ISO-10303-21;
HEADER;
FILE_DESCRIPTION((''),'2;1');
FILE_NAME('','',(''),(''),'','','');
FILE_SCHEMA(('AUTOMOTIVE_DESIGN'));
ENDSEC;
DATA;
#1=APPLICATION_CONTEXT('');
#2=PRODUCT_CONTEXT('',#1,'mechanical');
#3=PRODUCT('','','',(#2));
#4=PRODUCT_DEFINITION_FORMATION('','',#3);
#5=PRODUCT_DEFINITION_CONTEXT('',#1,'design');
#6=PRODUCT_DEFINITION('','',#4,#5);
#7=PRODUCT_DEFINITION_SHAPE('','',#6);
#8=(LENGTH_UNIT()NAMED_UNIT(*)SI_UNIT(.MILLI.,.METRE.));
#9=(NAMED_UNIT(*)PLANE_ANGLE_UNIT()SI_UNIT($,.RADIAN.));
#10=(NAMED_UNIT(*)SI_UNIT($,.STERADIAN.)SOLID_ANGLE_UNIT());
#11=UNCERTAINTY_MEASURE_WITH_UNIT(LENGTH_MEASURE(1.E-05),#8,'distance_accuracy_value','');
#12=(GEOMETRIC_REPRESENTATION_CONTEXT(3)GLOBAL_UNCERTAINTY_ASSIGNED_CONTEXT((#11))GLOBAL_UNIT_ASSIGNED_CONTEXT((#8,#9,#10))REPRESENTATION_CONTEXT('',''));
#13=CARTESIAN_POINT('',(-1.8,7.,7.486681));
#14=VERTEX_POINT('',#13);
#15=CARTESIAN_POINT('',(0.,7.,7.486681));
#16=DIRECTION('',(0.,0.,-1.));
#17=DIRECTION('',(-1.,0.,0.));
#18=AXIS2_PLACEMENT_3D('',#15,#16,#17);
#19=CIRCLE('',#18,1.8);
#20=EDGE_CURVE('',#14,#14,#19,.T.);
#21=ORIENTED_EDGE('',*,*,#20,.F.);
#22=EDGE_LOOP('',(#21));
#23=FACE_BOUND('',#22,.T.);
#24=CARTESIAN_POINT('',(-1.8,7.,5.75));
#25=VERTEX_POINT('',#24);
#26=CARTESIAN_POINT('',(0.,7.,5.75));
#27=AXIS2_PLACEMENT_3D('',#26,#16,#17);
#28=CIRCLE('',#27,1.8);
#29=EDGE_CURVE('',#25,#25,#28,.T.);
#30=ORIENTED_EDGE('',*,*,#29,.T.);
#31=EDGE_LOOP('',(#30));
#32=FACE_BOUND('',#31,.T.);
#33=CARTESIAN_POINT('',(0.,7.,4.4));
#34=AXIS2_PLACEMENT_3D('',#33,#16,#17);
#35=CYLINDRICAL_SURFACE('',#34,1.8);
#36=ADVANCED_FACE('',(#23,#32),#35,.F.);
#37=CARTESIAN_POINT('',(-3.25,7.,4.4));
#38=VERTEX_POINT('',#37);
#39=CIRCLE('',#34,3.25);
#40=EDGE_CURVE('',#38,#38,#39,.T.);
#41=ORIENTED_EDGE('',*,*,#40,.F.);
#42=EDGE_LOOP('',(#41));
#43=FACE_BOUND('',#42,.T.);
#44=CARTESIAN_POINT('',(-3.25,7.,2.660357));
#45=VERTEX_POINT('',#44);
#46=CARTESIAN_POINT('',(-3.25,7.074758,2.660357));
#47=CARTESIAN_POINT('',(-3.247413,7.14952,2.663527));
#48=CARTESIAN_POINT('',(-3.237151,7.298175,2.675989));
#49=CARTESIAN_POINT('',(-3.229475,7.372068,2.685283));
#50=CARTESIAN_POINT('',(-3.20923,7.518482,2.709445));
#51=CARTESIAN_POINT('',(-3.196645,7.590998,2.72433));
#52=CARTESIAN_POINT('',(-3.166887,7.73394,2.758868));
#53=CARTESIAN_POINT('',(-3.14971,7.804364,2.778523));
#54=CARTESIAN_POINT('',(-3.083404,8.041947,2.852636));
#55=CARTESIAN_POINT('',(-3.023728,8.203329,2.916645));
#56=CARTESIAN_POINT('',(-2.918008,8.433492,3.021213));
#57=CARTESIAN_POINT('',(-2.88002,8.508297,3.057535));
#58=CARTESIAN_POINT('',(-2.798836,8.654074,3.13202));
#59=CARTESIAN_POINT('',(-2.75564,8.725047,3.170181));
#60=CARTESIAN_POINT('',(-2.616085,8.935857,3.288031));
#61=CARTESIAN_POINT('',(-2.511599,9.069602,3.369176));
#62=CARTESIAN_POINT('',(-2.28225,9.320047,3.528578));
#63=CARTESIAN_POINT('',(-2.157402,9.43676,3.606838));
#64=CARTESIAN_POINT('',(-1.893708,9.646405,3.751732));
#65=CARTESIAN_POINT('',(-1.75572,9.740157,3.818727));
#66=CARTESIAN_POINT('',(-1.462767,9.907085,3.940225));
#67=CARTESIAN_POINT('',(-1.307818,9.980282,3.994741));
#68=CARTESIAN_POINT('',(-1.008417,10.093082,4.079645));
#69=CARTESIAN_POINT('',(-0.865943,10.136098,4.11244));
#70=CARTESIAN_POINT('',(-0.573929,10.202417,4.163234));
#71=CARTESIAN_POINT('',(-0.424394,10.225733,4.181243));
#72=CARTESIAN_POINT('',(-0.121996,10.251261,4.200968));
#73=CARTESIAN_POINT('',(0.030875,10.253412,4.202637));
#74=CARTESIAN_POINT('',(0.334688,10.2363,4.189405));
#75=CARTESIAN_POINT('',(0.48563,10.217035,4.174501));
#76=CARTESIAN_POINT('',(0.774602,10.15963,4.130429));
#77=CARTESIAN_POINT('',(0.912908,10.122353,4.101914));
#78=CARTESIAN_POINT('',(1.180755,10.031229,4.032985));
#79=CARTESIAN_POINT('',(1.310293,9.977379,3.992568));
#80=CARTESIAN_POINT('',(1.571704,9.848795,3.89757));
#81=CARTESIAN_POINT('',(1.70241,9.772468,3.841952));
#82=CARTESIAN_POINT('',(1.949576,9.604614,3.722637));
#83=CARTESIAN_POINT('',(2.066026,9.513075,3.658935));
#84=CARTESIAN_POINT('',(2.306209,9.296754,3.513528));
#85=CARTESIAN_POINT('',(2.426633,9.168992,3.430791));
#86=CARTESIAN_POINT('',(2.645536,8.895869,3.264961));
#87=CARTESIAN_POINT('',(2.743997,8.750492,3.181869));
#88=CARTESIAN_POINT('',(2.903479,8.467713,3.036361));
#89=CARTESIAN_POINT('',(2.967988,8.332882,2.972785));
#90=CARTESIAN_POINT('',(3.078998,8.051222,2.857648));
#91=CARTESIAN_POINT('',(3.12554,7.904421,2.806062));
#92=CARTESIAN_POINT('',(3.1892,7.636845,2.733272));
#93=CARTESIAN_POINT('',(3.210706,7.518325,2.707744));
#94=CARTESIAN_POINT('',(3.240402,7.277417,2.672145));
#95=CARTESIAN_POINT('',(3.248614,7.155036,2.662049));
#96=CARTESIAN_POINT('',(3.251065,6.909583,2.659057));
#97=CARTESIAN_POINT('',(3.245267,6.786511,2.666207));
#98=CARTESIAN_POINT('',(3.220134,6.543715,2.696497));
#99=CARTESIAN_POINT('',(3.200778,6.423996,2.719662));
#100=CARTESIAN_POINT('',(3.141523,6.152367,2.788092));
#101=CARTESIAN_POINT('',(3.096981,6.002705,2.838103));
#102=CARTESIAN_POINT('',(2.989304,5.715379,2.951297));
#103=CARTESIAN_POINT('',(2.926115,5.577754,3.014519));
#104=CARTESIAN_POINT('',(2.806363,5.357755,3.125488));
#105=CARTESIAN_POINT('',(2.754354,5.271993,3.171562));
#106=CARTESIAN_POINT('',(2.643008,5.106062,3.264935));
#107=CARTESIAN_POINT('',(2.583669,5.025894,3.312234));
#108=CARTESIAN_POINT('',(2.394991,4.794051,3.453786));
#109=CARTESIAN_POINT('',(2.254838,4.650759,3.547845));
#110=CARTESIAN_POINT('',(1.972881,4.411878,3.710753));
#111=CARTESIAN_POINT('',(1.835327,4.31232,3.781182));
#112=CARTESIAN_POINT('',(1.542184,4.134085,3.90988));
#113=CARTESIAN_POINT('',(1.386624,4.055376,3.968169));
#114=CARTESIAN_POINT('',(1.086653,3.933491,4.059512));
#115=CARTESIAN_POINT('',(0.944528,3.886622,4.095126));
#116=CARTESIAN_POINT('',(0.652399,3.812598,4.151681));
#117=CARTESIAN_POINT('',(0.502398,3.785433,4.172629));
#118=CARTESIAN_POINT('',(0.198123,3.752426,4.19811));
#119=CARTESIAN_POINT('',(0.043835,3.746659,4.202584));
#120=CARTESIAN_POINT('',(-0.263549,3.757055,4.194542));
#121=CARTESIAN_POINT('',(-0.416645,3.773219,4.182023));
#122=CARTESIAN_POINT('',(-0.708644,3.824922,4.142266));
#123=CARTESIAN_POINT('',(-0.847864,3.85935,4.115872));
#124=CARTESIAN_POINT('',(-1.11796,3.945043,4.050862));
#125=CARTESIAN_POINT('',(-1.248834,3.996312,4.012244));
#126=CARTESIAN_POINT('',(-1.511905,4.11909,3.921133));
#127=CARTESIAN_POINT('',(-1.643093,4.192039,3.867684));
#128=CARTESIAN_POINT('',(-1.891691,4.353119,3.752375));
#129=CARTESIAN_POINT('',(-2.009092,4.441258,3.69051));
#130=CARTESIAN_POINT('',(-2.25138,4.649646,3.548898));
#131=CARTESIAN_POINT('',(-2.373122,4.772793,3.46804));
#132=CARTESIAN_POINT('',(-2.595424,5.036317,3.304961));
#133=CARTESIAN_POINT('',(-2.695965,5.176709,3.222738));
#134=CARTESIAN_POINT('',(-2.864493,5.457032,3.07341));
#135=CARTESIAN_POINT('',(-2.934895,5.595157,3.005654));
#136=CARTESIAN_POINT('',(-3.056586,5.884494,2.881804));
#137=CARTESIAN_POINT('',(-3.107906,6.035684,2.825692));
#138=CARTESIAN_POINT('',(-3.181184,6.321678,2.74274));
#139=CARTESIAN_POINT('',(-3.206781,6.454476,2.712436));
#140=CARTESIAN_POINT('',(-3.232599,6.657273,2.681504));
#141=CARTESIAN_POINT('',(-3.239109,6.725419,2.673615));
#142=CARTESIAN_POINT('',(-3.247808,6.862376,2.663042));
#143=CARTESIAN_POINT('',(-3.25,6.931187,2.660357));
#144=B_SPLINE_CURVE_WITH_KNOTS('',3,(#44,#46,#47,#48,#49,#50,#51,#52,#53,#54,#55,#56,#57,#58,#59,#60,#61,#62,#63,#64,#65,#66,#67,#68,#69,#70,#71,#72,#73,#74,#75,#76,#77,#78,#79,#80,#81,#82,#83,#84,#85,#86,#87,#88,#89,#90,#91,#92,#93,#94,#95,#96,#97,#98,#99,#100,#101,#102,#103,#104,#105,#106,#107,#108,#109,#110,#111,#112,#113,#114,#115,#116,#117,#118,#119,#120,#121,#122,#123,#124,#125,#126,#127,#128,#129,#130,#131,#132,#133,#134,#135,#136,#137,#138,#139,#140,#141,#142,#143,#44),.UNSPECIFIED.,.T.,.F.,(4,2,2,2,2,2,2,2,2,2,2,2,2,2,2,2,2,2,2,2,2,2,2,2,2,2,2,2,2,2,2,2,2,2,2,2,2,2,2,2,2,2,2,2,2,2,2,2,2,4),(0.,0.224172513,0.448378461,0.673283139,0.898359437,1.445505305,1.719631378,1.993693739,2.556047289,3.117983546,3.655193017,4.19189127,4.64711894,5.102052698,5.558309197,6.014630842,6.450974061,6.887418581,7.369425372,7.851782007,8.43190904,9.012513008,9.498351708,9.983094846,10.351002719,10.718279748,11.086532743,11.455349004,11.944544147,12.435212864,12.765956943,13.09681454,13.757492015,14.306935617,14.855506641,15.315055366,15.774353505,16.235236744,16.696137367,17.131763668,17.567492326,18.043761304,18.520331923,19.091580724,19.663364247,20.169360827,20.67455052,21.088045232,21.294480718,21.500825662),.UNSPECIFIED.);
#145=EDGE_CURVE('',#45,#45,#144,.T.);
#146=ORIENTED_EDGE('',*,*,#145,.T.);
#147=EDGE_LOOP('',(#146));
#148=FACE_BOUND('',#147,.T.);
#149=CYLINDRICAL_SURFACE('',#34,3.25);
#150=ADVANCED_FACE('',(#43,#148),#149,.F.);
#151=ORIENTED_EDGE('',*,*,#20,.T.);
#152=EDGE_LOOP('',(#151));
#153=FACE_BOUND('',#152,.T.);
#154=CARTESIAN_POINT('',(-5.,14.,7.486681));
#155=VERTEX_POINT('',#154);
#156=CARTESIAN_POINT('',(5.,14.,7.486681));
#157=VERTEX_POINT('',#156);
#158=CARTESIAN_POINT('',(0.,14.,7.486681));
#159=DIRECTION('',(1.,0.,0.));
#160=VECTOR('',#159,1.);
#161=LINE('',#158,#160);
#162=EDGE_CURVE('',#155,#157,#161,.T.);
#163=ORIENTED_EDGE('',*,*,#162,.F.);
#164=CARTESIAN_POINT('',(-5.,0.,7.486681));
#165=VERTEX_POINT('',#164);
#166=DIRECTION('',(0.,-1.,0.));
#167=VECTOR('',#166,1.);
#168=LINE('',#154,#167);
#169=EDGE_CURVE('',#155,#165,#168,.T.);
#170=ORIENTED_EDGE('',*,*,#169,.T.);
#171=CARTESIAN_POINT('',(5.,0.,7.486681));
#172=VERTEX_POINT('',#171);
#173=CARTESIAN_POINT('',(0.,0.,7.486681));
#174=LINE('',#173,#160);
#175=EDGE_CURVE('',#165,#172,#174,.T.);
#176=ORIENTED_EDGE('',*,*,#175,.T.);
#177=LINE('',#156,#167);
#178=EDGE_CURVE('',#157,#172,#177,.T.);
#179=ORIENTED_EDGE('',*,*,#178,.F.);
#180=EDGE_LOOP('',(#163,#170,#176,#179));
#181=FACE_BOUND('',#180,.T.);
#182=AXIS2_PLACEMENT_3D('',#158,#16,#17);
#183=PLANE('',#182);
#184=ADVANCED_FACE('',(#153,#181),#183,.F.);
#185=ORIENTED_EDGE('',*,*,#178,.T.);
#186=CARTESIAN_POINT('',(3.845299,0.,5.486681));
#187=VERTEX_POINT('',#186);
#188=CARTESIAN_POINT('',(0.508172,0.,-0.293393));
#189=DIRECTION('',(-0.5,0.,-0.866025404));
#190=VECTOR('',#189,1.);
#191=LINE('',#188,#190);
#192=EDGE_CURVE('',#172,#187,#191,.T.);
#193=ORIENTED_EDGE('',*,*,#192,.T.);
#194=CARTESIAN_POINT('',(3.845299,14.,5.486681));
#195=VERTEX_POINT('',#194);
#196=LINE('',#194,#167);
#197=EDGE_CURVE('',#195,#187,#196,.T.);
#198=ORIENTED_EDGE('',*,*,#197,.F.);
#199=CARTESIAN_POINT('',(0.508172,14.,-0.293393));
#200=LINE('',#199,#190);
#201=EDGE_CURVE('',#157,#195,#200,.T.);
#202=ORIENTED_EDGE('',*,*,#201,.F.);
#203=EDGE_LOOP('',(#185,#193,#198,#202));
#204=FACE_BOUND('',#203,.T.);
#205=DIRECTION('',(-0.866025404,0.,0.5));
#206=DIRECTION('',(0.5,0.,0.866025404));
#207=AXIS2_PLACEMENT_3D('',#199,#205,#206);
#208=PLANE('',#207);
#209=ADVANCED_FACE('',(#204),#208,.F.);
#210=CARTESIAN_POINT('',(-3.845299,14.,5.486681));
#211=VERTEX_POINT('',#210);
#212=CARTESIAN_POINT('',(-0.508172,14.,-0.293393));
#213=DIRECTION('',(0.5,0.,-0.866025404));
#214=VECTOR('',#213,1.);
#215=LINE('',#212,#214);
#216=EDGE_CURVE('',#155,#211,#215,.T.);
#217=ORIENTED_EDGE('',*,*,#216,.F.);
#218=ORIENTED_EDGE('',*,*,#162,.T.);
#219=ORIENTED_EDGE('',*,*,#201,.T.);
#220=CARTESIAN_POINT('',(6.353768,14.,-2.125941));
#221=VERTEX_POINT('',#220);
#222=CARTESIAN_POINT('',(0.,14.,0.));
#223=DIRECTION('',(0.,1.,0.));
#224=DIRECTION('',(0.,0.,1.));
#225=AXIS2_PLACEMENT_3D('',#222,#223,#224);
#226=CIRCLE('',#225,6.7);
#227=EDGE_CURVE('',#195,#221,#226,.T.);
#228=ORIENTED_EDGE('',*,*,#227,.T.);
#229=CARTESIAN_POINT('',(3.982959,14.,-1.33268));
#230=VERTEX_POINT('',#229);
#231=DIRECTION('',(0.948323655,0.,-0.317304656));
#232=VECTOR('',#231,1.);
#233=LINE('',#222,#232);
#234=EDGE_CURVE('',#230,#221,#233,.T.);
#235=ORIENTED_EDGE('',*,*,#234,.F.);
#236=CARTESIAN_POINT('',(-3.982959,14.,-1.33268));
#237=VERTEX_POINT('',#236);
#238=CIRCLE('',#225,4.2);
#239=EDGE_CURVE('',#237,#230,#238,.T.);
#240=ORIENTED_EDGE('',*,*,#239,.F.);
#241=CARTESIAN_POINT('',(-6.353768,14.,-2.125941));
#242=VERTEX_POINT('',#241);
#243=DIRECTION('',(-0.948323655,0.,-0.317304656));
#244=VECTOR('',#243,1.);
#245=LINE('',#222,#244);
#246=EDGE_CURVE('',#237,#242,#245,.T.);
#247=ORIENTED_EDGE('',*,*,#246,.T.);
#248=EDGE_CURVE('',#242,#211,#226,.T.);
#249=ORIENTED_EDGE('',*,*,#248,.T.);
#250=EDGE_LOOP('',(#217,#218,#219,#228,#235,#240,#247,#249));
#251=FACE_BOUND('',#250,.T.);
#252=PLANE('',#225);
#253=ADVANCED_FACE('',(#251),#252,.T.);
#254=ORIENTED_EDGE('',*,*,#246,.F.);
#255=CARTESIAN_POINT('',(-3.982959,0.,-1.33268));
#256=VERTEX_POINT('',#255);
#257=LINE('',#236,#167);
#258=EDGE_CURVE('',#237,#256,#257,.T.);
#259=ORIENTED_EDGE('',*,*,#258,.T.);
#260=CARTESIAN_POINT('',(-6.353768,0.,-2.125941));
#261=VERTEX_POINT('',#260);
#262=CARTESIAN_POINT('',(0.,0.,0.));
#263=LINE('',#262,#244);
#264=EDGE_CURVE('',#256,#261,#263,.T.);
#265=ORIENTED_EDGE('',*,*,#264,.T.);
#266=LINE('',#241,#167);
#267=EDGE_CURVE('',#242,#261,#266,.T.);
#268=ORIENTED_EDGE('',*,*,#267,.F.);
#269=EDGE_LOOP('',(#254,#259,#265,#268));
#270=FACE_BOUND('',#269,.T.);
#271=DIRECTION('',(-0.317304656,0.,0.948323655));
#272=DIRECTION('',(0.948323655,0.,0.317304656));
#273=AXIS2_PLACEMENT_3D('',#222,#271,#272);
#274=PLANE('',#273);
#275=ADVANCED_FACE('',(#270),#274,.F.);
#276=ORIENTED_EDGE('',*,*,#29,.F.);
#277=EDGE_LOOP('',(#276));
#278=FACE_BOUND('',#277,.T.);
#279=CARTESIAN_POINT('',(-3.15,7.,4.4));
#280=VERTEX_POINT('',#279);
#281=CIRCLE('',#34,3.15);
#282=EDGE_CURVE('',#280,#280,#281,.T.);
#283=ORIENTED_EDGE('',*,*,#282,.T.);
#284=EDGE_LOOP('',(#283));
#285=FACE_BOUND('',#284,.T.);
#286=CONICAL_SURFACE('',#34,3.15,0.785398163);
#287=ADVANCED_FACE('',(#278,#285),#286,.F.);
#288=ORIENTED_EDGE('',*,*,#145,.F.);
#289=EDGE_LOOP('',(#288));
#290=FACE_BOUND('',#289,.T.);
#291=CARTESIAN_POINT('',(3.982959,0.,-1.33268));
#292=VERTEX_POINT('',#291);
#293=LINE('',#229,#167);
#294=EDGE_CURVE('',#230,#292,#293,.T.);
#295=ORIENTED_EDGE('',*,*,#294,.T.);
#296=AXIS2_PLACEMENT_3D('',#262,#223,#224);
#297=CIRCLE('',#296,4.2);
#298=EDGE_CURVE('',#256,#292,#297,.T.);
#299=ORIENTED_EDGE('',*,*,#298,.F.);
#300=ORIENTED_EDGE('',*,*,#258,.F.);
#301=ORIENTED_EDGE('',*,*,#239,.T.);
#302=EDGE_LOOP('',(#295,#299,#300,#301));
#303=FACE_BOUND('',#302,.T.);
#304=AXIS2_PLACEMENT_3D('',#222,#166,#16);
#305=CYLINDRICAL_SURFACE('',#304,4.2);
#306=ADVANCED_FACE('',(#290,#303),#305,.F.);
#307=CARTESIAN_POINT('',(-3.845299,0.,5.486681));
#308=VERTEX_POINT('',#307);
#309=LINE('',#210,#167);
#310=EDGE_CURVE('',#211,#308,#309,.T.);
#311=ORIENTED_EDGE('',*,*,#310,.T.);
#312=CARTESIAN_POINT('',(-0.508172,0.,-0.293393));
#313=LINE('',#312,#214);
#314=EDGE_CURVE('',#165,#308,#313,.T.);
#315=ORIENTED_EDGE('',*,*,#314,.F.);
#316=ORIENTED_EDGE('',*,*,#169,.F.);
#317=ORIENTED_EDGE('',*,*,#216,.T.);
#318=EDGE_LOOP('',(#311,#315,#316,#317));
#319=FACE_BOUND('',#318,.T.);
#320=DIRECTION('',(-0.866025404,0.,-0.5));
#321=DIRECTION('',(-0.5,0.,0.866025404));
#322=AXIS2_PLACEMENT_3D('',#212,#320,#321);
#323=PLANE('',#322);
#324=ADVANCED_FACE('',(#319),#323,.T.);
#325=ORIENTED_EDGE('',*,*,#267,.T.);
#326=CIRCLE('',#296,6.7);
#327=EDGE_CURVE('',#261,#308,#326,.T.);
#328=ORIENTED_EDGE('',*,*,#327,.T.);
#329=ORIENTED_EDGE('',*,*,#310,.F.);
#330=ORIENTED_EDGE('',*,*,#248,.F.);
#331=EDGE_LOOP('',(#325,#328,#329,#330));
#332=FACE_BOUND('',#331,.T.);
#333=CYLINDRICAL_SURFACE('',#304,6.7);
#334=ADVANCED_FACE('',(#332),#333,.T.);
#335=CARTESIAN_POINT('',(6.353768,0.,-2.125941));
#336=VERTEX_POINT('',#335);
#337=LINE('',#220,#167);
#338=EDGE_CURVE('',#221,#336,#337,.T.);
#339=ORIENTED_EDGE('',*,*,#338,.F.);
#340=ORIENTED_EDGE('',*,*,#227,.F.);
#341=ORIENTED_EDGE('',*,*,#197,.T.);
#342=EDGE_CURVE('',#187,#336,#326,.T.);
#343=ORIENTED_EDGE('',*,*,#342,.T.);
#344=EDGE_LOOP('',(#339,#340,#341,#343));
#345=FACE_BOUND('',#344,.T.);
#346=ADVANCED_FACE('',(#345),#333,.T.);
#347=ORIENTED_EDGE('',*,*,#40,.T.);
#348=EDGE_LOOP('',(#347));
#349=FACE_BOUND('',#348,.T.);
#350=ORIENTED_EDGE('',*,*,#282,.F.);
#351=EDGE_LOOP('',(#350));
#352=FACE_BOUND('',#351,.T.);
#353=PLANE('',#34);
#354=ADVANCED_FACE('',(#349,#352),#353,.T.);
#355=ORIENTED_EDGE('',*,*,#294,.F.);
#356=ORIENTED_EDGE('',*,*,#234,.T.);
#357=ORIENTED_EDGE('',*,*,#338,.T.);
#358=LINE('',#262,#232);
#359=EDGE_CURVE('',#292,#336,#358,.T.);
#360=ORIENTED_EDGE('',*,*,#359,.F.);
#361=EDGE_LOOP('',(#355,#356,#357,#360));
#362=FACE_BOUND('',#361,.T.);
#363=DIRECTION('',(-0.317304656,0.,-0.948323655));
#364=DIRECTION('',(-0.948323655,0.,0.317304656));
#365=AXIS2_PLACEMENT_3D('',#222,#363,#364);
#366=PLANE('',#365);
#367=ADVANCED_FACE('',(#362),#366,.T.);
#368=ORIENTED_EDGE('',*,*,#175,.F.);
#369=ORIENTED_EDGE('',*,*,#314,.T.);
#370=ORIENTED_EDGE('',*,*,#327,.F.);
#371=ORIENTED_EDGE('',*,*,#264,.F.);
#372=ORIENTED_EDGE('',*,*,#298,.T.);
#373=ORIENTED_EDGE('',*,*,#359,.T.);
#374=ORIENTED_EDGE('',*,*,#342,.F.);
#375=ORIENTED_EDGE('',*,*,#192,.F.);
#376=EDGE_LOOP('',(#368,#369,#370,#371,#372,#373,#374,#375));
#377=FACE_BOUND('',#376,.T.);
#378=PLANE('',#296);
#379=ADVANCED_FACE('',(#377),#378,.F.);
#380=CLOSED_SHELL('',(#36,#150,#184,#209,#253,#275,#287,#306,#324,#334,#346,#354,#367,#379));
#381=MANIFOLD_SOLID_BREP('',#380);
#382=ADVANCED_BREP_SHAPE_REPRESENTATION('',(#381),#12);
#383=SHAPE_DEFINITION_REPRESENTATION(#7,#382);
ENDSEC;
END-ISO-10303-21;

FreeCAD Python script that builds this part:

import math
import FreeCAD as App
import Part
import Sketcher
from FreeCAD import Vector
Q = App.Units.Quantity

doc = App.newDocument("Part")
body = doc.addObject("PartDesign::Body", "Body")

sketch1 = doc.addObject("Sketcher::SketchObject", "Sketch")
body.addObject(sketch1)
sketch1.AttachmentSupport = (doc.XZ_Plane, [""])
sketch1.MapMode = "FlatFace"
sketch1.addGeometry([
    Part.LineSegment(Vector(-5, 7.5, 0), Vector(5, 7.5, 0)),
    Part.LineSegment(Vector(5, 7.5, 0), Vector(3.8, 5.5, 0)),
    Part.ArcOfCircle(Part.Circle(Vector(0, 0, 0), Vector(0, 0, 1), 6.7), math.radians(-19), math.radians(55)),
    Part.LineSegment(Vector(6.4, -2.1, 0), Vector(4, -1.3, 0)),
    Part.ArcOfCircle(Part.Circle(Vector(0, 0, 0), Vector(0, 0, 1), 4.2), math.radians(-19), math.radians(199)),
    Part.LineSegment(Vector(-4, -1.3, 0), Vector(-6.4, -2.1, 0)),
    Part.ArcOfCircle(Part.Circle(Vector(0, 0, 0), Vector(0, 0, 1), 6.7), math.radians(125), math.radians(199)),
    Part.LineSegment(Vector(-3.8, 5.5, 0), Vector(-5, 7.5, 0)),
], False)
sketch1.addConstraint([
    Sketcher.Constraint("Coincident", 0, 2, 1, 1),
    Sketcher.Constraint("Coincident", 1, 2, 2, 2),
    Sketcher.Constraint("Coincident", 2, 1, 3, 1),
    Sketcher.Constraint("Coincident", 3, 2, 4, 1),
    Sketcher.Constraint("Coincident", 4, 2, 5, 1),
    Sketcher.Constraint("Coincident", 5, 2, 6, 2),
    Sketcher.Constraint("Coincident", 6, 1, 7, 1),
    Sketcher.Constraint("Coincident", 7, 2, 0, 1),
    Sketcher.Constraint("Horizontal", 0),
    Sketcher.Constraint("Coincident", 2, 3, -1, 1),
    Sketcher.Constraint("Coincident", 4, 3, -1, 1),
    Sketcher.Constraint("Coincident", 6, 3, -1, 1),
    Sketcher.Constraint("Equal", 2, 6),
    Sketcher.Constraint("Horizontal", 3, 2, 4, 2),
    Sketcher.Constraint("Horizontal", 2, 1, 5, 2),
    Sketcher.Constraint("Horizontal", 1, 2, 6, 1),
    Sketcher.Constraint("Equal", 1, 7),
    Sketcher.Constraint("Radius", 2, Q("6.7 mm")),
    Sketcher.Constraint("Radius", 4, Q("4.2 mm")),
    Sketcher.Constraint("DistanceX", 0, 1, 0, 2, Q("10 mm")),
    Sketcher.Constraint("Angle", 1, Q("-120 deg")),
    Sketcher.Constraint("Angle", 3, Q("161.5 deg")),
    Sketcher.Constraint("DistanceY", 1, 2, 0, 2, Q("2 mm")),
    Sketcher.Constraint("DistanceX", -1, 1, 2, 1, Q("6.353768 mm")),
])
pad1 = doc.addObject("PartDesign::Pad", "Pad")
body.addObject(pad1)
pad1.Profile = sketch1
pad1.Length = 14
pad1.Reversed = True

sketch2 = doc.addObject("Sketcher::SketchObject", "Sketch001")
body.addObject(sketch2)
sketch2.AttachmentSupport = (doc.XY_Plane, [""])
sketch2.MapMode = "FlatFace"
sketch2.AttachmentOffset = App.Placement(Vector(0, 0, 4.2), App.Rotation())
sketch2.addGeometry(Part.Circle(Vector(0, 7, 0), Vector(0, 0, 1), 3.2), False)
sketch2.addConstraint([
    Sketcher.Constraint("PointOnObject", 0, 3, -2),
    Sketcher.Constraint("Diameter", 0, Q("6.5 mm")),
    Sketcher.Constraint("DistanceY", -1, 1, 0, 3, Q("7 mm")),
])
pocket1 = doc.addObject("PartDesign::Pocket", "Pocket")
body.addObject(pocket1)
pocket1.Profile = sketch2
pocket1.Type = "TwoLengths"
pocket1.Length = 17.760296
pocket1.Length2 = 0.2

sketch3 = doc.addObject("Sketcher::SketchObject", "Sketch002")
body.addObject(sketch3)
sketch3.AttachmentSupport = (doc.XY_Plane, [""])
sketch3.MapMode = "FlatFace"
sketch3.AttachmentOffset = App.Placement(Vector(0, 0, 4.4), App.Rotation())
sketch3.addGeometry(Part.Circle(Vector(0, 7, 0), Vector(0, 0, 1), 1.8), False)
sketch3.addConstraint([
    Sketcher.Constraint("PointOnObject", 0, 3, -2),
    Sketcher.Constraint("Diameter", 0, Q("3.6 mm")),
    Sketcher.Constraint("DistanceY", -1, 1, 0, 3, Q("7 mm")),
])
doc.recompute()
hole = doc.addObject("PartDesign::Hole", "Hole")
body.addObject(hole)
hole.Profile = sketch3
hole.ThreadType = "None"
hole.Diameter = 3.6
hole.DepthType = "Dimension"
hole.Depth = 7.5
hole.DrillPoint = "Angled"
hole.DrillPointAngle = 118
hole.HoleCutType = "Countersink"
hole.HoleCutDiameter = 6.3
hole.HoleCutCountersinkAngle = 90
hole.Reversed = True

doc.recompute()
